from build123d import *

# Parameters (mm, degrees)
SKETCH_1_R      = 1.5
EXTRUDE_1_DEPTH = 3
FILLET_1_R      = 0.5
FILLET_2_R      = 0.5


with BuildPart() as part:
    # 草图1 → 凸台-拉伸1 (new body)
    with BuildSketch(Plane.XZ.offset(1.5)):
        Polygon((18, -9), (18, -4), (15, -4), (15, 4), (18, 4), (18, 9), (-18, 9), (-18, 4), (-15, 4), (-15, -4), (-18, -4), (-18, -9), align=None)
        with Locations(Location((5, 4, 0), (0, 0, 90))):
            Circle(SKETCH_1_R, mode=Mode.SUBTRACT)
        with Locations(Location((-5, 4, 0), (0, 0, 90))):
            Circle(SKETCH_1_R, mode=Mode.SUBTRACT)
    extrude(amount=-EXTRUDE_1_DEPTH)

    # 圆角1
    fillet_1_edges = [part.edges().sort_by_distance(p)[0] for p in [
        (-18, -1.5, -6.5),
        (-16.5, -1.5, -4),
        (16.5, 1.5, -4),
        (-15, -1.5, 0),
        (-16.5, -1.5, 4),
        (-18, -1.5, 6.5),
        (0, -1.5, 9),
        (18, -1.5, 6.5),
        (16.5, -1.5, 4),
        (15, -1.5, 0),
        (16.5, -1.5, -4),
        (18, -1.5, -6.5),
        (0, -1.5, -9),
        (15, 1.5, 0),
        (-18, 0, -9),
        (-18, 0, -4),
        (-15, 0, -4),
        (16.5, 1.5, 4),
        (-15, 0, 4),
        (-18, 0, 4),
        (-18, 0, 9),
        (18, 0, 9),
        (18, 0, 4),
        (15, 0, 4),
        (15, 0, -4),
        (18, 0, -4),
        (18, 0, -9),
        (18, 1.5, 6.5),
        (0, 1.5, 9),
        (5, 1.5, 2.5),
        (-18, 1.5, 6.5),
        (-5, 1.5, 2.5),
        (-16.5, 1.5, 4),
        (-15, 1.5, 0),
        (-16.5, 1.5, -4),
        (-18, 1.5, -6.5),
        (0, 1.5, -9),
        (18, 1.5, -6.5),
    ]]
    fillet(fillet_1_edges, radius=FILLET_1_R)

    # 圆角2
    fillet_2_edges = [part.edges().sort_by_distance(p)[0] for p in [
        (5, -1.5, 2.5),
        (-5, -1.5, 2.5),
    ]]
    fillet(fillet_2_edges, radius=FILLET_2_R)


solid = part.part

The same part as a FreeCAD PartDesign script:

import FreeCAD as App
import Part
import Sketcher
from FreeCAD import Vector


def edges_at(feature, points):
    """Names of the edges that pass closest to the given points."""
    edges = feature.Shape.Edges
    near = lambda p: min(range(len(edges)), key=lambda i: edges[i].distToShape(Part.Vertex(*p))[0])
    return sorted({f"Edge{near(p) + 1}" for p in points})

doc = App.newDocument("Part")
params = doc.addObject("Spreadsheet::Sheet", "Params")
for row, (alias, value) in enumerate([
    ("sketch1_diameter", "3 mm"),
    ("sketch1_width", "3 mm"),
    ("sketch1_width2", "36 mm"),
    ("sketch1_height", "5 mm"),
    ("sketch1_height2", "8 mm"),
    ("pad1_length", "3 mm"),
    ("fillet_radius", "0.5 mm"),
    ("fillet2_radius", "0.5 mm"),
], start=1):
    params.set(f"A{row}", alias)
    params.set(f"B{row}", "=" + value)
    params.setAlias(f"B{row}", alias)

body = doc.addObject("PartDesign::Body", "Body")

# Sketch on XZ plane
sketch1 = body.newObject("Sketcher::SketchObject", "Sketch")
sketch1.AttachmentSupport = (doc.getObject("XZ_Plane"), [""])
sketch1.MapMode = "FlatFace"
sketch1.AttachmentOffset = App.Placement(Vector(0, 0, 1.5), App.Rotation())
sketch1.addGeometry([
    Part.LineSegment(Vector(18, -9, 0), Vector(18, -4, 0)),  # 0
    Part.LineSegment(Vector(18, -4, 0), Vector(15, -4, 0)),  # 1
    Part.LineSegment(Vector(15, -4, 0), Vector(15, 4, 0)),  # 2
    Part.LineSegment(Vector(15, 4, 0), Vector(18, 4, 0)),  # 3
    Part.LineSegment(Vector(18, 4, 0), Vector(18, 9, 0)),  # 4
    Part.LineSegment(Vector(18, 9, 0), Vector(-18, 9, 0)),  # 5
    Part.LineSegment(Vector(-18, 9, 0), Vector(-18, 4, 0)),  # 6
    Part.LineSegment(Vector(-18, 4, 0), Vector(-15, 4, 0)),  # 7
    Part.LineSegment(Vector(-15, 4, 0), Vector(-15, -4, 0)),  # 8
    Part.LineSegment(Vector(-15, -4, 0), Vector(-18, -4, 0)),  # 9
    Part.LineSegment(Vector(-18, -4, 0), Vector(-18, -9, 0)),  # 10
    Part.LineSegment(Vector(-18, -9, 0), Vector(18, -9, 0)),  # 11
    Part.Circle(Vector(-5, 4, 0), Vector(0, 0, 1), 1.5),  # 12
    Part.Circle(Vector(5, 4, 0), Vector(0, 0, 1), 1.5),  # 13
], False)
sketch1.addConstraint([
    Sketcher.Constraint("Coincident", 0, 2, 1, 1),
    Sketcher.Constraint("Coincident", 1, 2, 2, 1),
    Sketcher.Constraint("Coincident", 2, 2, 3, 1),
    Sketcher.Constraint("Coincident", 3, 2, 4, 1),
    Sketcher.Constraint("Coincident", 4, 2, 5, 1),
    Sketcher.Constraint("Coincident", 5, 2, 6, 1),
    Sketcher.Constraint("Coincident", 6, 2, 7, 1),
    Sketcher.Constraint("Coincident", 7, 2, 8, 1),
    Sketcher.Constraint("Coincident", 8, 2, 9, 1),
    Sketcher.Constraint("Coincident", 9, 2, 10, 1),
    Sketcher.Constraint("Coincident", 10, 2, 11, 1),
    Sketcher.Constraint("Coincident", 11, 2, 0, 1),
    Sketcher.Constraint("Vertical", 0),
    Sketcher.Constraint("Horizontal", 1),
    Sketcher.Constraint("Vertical", 2),
    Sketcher.Constraint("Horizontal", 3),
    Sketcher.Constraint("Vertical", 4),
    Sketcher.Constraint("Horizontal", 5),
    Sketcher.Constraint("Vertical", 6),
    Sketcher.Constraint("Horizontal", 7),
    Sketcher.Constraint("Vertical", 8),
    Sketcher.Constraint("Horizontal", 9),
    Sketcher.Constraint("Vertical", 10),
    Sketcher.Constraint("Horizontal", 11),
    Sketcher.Constraint("Equal", 12, 13),
    Sketcher.Constraint("Symmetric", 0, 2, 6, 2, -1, 1),
    Sketcher.Constraint("Symmetric", 2, 2, 8, 2, -1, 1),
    Sketcher.Constraint("Symmetric", 4, 2, 10, 2, -1, 1),
    Sketcher.Constraint("Symmetric", 12, 3, 13, 3, -2),
    Sketcher.Constraint("Symmetric", 3, 2, 6, 2, -2),
    Sketcher.Constraint("Horizontal", 13, 3, 2, 2),
    Sketcher.Constraint("Diameter", 12, 3.0),
    Sketcher.Constraint("DistanceX", 1, 2, 1, 1, 3.0),
    Sketcher.Constraint("DistanceX", 5, 2, 5, 1, 36.0),
    Sketcher.Constraint("DistanceY", 0, 1, 0, 2, 5.0),
    Sketcher.Constraint("DistanceY", 2, 1, 2, 2, 8.0),
    Sketcher.Constraint("DistanceX", 12, 3, -1, 1, 5.0),
])
sketch1.setExpression("Constraints[31]", "Params.sketch1_diameter")
sketch1.setExpression("Constraints[32]", "Params.sketch1_width")
sketch1.setExpression("Constraints[33]", "Params.sketch1_width2")
sketch1.setExpression("Constraints[34]", "Params.sketch1_height")
sketch1.setExpression("Constraints[35]", "Params.sketch1_height2")
pad1 = body.newObject("PartDesign::Pad", "Pad")
pad1.Profile = sketch1
pad1.setExpression("Length", "Params.pad1_length")
pad1.Reversed = True
doc.recompute()

fillet = body.newObject("PartDesign::Fillet", "Fillet")
fillet.Base = (pad1, edges_at(pad1, [
    (-18, -1.5, -6.5),
    (-16.5, -1.5, -4),
    (16.5, 1.5, -4),
    (-15, -1.5, 0),
    (-16.5, -1.5, 4),
    (-18, -1.5, 6.5),
    (0, -1.5, 9),
    (18, -1.5, 6.5),
    (16.5, -1.5, 4),
    (15, -1.5, 0),
    (16.5, -1.5, -4),
    (18, -1.5, -6.5),
    (0, -1.5, -9),
    (15, 1.5, 0),
    (-18, 0, -9),
    (-18, 0, -4),
    (-15, 0, -4),
    (16.5, 1.5, 4),
    (-15, 0, 4),
    (-18, 0, 4),
    (-18, 0, 9),
    (18, 0, 9),
    (18, 0, 4),
    (15, 0, 4),
    (15, 0, -4),
    (18, 0, -4),
    (18, 0, -9),
    (18, 1.5, 6.5),
    (0, 1.5, 9),
    (5, 1.5, 2.5),
    (-18, 1.5, 6.5),
    (-5, 1.5, 2.5),
    (-16.5, 1.5, 4),
    (-15, 1.5, 0),
    (-16.5, 1.5, -4),
    (-18, 1.5, -6.5),
    (0, 1.5, -9),
    (18, 1.5, -6.5),
]))
fillet.setExpression("Radius", "Params.fillet_radius")
doc.recompute()

fillet2 = body.newObject("PartDesign::Fillet", "Fillet001")
fillet2.Base = (fillet, edges_at(fillet, [(5, -1.5, 2.5), (-5, -1.5, 2.5)]))
fillet2.setExpression("Radius", "Params.fillet2_radius")

doc.recompute()
